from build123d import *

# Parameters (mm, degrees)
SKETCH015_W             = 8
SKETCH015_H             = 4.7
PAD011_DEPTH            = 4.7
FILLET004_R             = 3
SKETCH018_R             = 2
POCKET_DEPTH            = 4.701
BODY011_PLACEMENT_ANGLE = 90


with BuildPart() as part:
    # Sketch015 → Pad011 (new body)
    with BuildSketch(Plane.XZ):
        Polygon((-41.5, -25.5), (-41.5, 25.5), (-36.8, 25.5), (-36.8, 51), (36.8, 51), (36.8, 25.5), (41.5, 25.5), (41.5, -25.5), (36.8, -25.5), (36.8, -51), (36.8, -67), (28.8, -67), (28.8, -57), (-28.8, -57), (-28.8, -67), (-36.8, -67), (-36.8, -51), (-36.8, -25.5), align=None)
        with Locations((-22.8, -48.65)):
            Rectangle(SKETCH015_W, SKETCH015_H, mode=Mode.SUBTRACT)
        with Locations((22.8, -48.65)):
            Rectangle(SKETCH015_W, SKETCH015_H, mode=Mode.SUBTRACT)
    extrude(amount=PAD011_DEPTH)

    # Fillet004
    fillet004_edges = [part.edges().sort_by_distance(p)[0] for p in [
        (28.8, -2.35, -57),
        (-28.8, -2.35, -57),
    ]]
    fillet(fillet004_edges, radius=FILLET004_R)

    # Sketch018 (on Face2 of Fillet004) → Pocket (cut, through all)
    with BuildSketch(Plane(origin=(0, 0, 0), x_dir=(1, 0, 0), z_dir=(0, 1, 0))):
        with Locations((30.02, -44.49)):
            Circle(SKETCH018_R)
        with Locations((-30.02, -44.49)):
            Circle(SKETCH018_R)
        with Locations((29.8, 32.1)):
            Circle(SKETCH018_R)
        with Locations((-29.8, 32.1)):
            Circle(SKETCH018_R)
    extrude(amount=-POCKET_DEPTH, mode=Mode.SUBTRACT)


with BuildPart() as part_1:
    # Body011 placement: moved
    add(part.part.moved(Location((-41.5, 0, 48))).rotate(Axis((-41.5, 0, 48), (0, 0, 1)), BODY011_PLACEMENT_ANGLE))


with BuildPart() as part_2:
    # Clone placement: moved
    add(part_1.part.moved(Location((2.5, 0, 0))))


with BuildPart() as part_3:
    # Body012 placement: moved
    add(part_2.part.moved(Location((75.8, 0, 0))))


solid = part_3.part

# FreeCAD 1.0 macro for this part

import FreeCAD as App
import Part
import Sketcher


def edges_at(feature, points):
    """Names of the edges that pass closest to the given points."""
    edges = feature.Shape.Edges
    near = lambda p: min(range(len(edges)), key=lambda i: edges[i].distToShape(Part.Vertex(*p))[0])
    return sorted({f"Edge{near(p) + 1}" for p in points})

doc = App.newDocument("Part")
body = doc.addObject("PartDesign::Body", "Body")

sketch1 = body.newObject("Sketcher::SketchObject", "Sketch")
sketch1.AttachmentSupport = (doc.getObject("XZ_Plane"), [""])
sketch1.MapMode = "FlatFace"
sketch1.addGeometry(Part.LineSegment(App.Vector(-41.5, 25.5, 0), App.Vector(-41.5, -25.5, 0)), False)
sketch1.addGeometry(Part.LineSegment(App.Vector(-41.5, -25.5, 0), App.Vector(-36.8, -25.5, 0)), False)
sketch1.addGeometry(Part.LineSegment(App.Vector(-36.8, -25.5, 0), App.Vector(-36.8, -67, 0)), False)
sketch1.addGeometry(Part.LineSegment(App.Vector(-36.8, -67, 0), App.Vector(-28.8, -67, 0)), False)
sketch1.addGeometry(Part.LineSegment(App.Vector(-28.8, -67, 0), App.Vector(-28.8, -57, 0)), False)
sketch1.addGeometry(Part.LineSegment(App.Vector(-28.8, -57, 0), App.Vector(28.8, -57, 0)), False)
sketch1.addGeometry(Part.LineSegment(App.Vector(28.8, -57, 0), App.Vector(28.8, -67, 0)), False)
sketch1.addGeometry(Part.LineSegment(App.Vector(28.8, -67, 0), App.Vector(36.8, -67, 0)), False)
sketch1.addGeometry(Part.LineSegment(App.Vector(36.8, -67, 0), App.Vector(36.8, -25.5, 0)), False)
sketch1.addGeometry(Part.LineSegment(App.Vector(36.8, -25.5, 0), App.Vector(41.5, -25.5, 0)), False)
sketch1.addGeometry(Part.LineSegment(App.Vector(41.5, -25.5, 0), App.Vector(41.5, 25.5, 0)), False)
sketch1.addGeometry(Part.LineSegment(App.Vector(41.5, 25.5, 0), App.Vector(36.8, 25.5, 0)), False)
sketch1.addGeometry(Part.LineSegment(App.Vector(36.8, 25.5, 0), App.Vector(36.8, 51, 0)), False)
sketch1.addGeometry(Part.LineSegment(App.Vector(36.8, 51, 0), App.Vector(-36.8, 51, 0)), False)
sketch1.addGeometry(Part.LineSegment(App.Vector(-36.8, 51, 0), App.Vector(-36.8, 25.5, 0)), False)
sketch1.addGeometry(Part.LineSegment(App.Vector(-36.8, 25.5, 0), App.Vector(-41.5, 25.5, 0)), False)
sketch1.addGeometry(Part.LineSegment(App.Vector(18.8, -51, 0), App.Vector(18.8, -46.3, 0)), False)
sketch1.addGeometry(Part.LineSegment(App.Vector(18.8, -46.3, 0), App.Vector(26.8, -46.3, 0)), False)
sketch1.addGeometry(Part.LineSegment(App.Vector(26.8, -46.3, 0), App.Vector(26.8, -51, 0)), False)
sketch1.addGeometry(Part.LineSegment(App.Vector(26.8, -51, 0), App.Vector(18.8, -51, 0)), False)
sketch1.addGeometry(Part.LineSegment(App.Vector(-26.8, -51, 0), App.Vector(-26.8, -46.3, 0)), False)
sketch1.addGeometry(Part.LineSegment(App.Vector(-26.8, -46.3, 0), App.Vector(-18.8, -46.3, 0)), False)
sketch1.addGeometry(Part.LineSegment(App.Vector(-18.8, -46.3, 0), App.Vector(-18.8, -51, 0)), False)
sketch1.addGeometry(Part.LineSegment(App.Vector(-18.8, -51, 0), App.Vector(-26.8, -51, 0)), False)
sketch1.addConstraint(Sketcher.Constraint("Coincident", 0, 2, 1, 1))
sketch1.addConstraint(Sketcher.Constraint("Coincident", 1, 2, 2, 1))
sketch1.addConstraint(Sketcher.Constraint("Coincident", 2, 2, 3, 1))
sketch1.addConstraint(Sketcher.Constraint("Coincident", 3, 2, 4, 1))
sketch1.addConstraint(Sketcher.Constraint("Coincident", 4, 2, 5, 1))
sketch1.addConstraint(Sketcher.Constraint("Coincident", 5, 2, 6, 1))
sketch1.addConstraint(Sketcher.Constraint("Coincident", 6, 2, 7, 1))
sketch1.addConstraint(Sketcher.Constraint("Coincident", 7, 2, 8, 1))
sketch1.addConstraint(Sketcher.Constraint("Coincident", 8, 2, 9, 1))
sketch1.addConstraint(Sketcher.Constraint("Coincident", 9, 2, 10, 1))
sketch1.addConstraint(Sketcher.Constraint("Coincident", 10, 2, 11, 1))
sketch1.addConstraint(Sketcher.Constraint("Coincident", 11, 2, 12, 1))
sketch1.addConstraint(Sketcher.Constraint("Coincident", 12, 2, 13, 1))
sketch1.addConstraint(Sketcher.Constraint("Coincident", 13, 2, 14, 1))
sketch1.addConstraint(Sketcher.Constraint("Coincident", 14, 2, 15, 1))
sketch1.addConstraint(Sketcher.Constraint("Coincident", 15, 2, 0, 1))
sketch1.addConstraint(Sketcher.Constraint("Coincident", 16, 2, 17, 1))
sketch1.addConstraint(Sketcher.Constraint("Coincident", 17, 2, 18, 1))
sketch1.addConstraint(Sketcher.Constraint("Coincident", 18, 2, 19, 1))
sketch1.addConstraint(Sketcher.Constraint("Coincident", 19, 2, 16, 1))
sketch1.addConstraint(Sketcher.Constraint("Coincident", 20, 2, 21, 1))
sketch1.addConstraint(Sketcher.Constraint("Coincident", 21, 2, 22, 1))
sketch1.addConstraint(Sketcher.Constraint("Coincident", 22, 2, 23, 1))
sketch1.addConstraint(Sketcher.Constraint("Coincident", 23, 2, 20, 1))
sketch1.addConstraint(Sketcher.Constraint("Vertical", 0))
sketch1.addConstraint(Sketcher.Constraint("Horizontal", 1))
sketch1.addConstraint(Sketcher.Constraint("Vertical", 2))
sketch1.addConstraint(Sketcher.Constraint("Horizontal", 3))
sketch1.addConstraint(Sketcher.Constraint("Vertical", 4))
sketch1.addConstraint(Sketcher.Constraint("Horizontal", 5))
sketch1.addConstraint(Sketcher.Constraint("Vertical", 6))
sketch1.addConstraint(Sketcher.Constraint("Horizontal", 7))
sketch1.addConstraint(Sketcher.Constraint("Vertical", 8))
sketch1.addConstraint(Sketcher.Constraint("Horizontal", 9))
sketch1.addConstraint(Sketcher.Constraint("Vertical", 10))
sketch1.addConstraint(Sketcher.Constraint("Horizontal", 11))
sketch1.addConstraint(Sketcher.Constraint("Vertical", 12))
sketch1.addConstraint(Sketcher.Constraint("Horizontal", 13))
sketch1.addConstraint(Sketcher.Constraint("Vertical", 14))
sketch1.addConstraint(Sketcher.Constraint("Horizontal", 15))
sketch1.addConstraint(Sketcher.Constraint("Vertical", 16))
sketch1.addConstraint(Sketcher.Constraint("Horizontal", 17))
sketch1.addConstraint(Sketcher.Constraint("Vertical", 18))
sketch1.addConstraint(Sketcher.Constraint("Horizontal", 19))
sketch1.addConstraint(Sketcher.Constraint("Vertical", 20))
sketch1.addConstraint(Sketcher.Constraint("Horizontal", 21))
sketch1.addConstraint(Sketcher.Constraint("Vertical", 22))
sketch1.addConstraint(Sketcher.Constraint("Horizontal", 23))
sketch1.addConstraint(Sketcher.Constraint("Symmetric", 0, 2, 10, 2, -1, 1))
sketch1.addConstraint(Sketcher.Constraint("Symmetric", 8, 2, 14, 2, -1, 1))
sketch1.addConstraint(Sketcher.Constraint("Symmetric", 3, 2, 6, 2, -2))
sketch1.addConstraint(Sketcher.Constraint("Symmetric", 1, 2, 8, 2, -2))
sketch1.addConstraint(Sketcher.Constraint("Symmetric", 17, 2, 20, 2, -2))
sketch1.addConstraint(Sketcher.Constraint("Symmetric", 19, 2, 22, 2, -2))
sketch1.addConstraint(Sketcher.Constraint("Vertical", 8, 2, 11, 2))
sketch1.addConstraint(Sketcher.Constraint("Equal", 7, 17))
sketch1.addConstraint(Sketcher.Constraint("Equal", 15, 16))
sketch1.addConstraint(Sketcher.Constraint("DistanceX", 3, 1, 3, 2, 8.0))
sketch1.addConstraint(Sketcher.Constraint("DistanceY", 0, 2, 0, 1, 51.0))
sketch1.addConstraint(Sketcher.Constraint("DistanceY", 4, 1, 4, 2, 10.0))
sketch1.addConstraint(Sketcher.Constraint("DistanceX", 1, 1, 1, 2, 4.7))
sketch1.addConstraint(Sketcher.Constraint("DistanceX", 5, 1, 5, 2, 57.6))
sketch1.addConstraint(Sketcher.Constraint("DistanceY", 2, 2, 2, 1, 41.5))
sketch1.addConstraint(Sketcher.Constraint("DistanceY", 12, 1, 12, 2, 25.5))
sketch1.addConstraint(Sketcher.Constraint("DistanceY", 18, 2, -1, 1, 51.0))
sketch1.addConstraint(Sketcher.Constraint("DistanceX", 16, 2, 5, 2, 10.0))
pad1 = body.newObject("PartDesign::Pad", "Pad")
pad1.Profile = sketch1
pad1.Length = 4.7
doc.recompute()

fillet = body.newObject("PartDesign::Fillet", "Fillet")
fillet.Base = (pad1, edges_at(pad1, [(28.8, -2.35, -57), (-28.8, -2.35, -57)]))
fillet.Radius = 3

sketch2 = body.newObject("Sketcher::SketchObject", "Sketch001")
sketch2.AttachmentSupport = (doc.getObject("XZ_Plane"), [""])
sketch2.MapMode = "FlatFace"
sketch2.addGeometry(Part.Circle(App.Vector(30, 44.5, 0), App.Vector(0, 0, 1), 2), False)
sketch2.addGeometry(Part.Circle(App.Vector(-30, 44.5, 0), App.Vector(0, 0, 1), 2), False)
sketch2.addGeometry(Part.Circle(App.Vector(29.8, -32.1, 0), App.Vector(0, 0, 1), 2), False)
sketch2.addGeometry(Part.Circle(App.Vector(-29.8, -32.1, 0), App.Vector(0, 0, 1), 2), False)
sketch2.addConstraint(Sketcher.Constraint("Equal", 0, 1))
sketch2.addConstraint(Sketcher.Constraint("Equal", 1, 2))
sketch2.addConstraint(Sketcher.Constraint("Equal", 2, 3))
sketch2.addConstraint(Sketcher.Constraint("Symmetric", 0, 3, 1, 3, -2))
sketch2.addConstraint(Sketcher.Constraint("Symmetric", 2, 3, 3, 3, -2))
sketch2.addConstraint(Sketcher.Constraint("Diameter", 0, 4.0))
sketch2.addConstraint(Sketcher.Constraint("DistanceX", -1, 1, 2, 3, 29.8))
sketch2.addConstraint(Sketcher.Constraint("DistanceY", 2, 3, -1, 1, 32.1))
sketch2.addConstraint(Sketcher.Constraint("DistanceX", -1, 1, 0, 3, 30.02))
sketch2.addConstraint(Sketcher.Constraint("DistanceY", -1, 1, 0, 3, 44.49))
pocket1 = body.newObject("PartDesign::Pocket", "Pocket")
pocket1.Profile = sketch2
pocket1.Type = "ThroughAll"
pocket1.Reversed = True
body2 = doc.addObject("PartDesign::Body", "Body001")
doc.recompute()

body.Placement = App.Placement(App.Vector(-41.5, 0, 48), App.Rotation(App.Vector(0, 0, 1), 90))
boolean = body2.newObject("PartDesign::Boolean", "Boolean")
boolean.Type = "Fuse"
boolean.addObjects([body])
body3 = doc.addObject("PartDesign::Body", "Body002")
doc.recompute()

body2.Placement = App.Placement(App.Vector(2.5, 0, 0), App.Rotation(App.Vector(0, 0, 1), 0))
boolean2 = body3.newObject("PartDesign::Boolean", "Boolean001")
boolean2.Type = "Fuse"
boolean2.addObjects([body2])
body4 = doc.addObject("PartDesign::Body", "Body003")
doc.recompute()

body3.Placement = App.Placement(App.Vector(75.8, 0, 0), App.Rotation(App.Vector(0, 0, 1), 0))
boolean3 = body4.newObject("PartDesign::Boolean", "Boolean002")
boolean3.Type = "Fuse"
boolean3.addObjects([body3])

doc.recompute()
